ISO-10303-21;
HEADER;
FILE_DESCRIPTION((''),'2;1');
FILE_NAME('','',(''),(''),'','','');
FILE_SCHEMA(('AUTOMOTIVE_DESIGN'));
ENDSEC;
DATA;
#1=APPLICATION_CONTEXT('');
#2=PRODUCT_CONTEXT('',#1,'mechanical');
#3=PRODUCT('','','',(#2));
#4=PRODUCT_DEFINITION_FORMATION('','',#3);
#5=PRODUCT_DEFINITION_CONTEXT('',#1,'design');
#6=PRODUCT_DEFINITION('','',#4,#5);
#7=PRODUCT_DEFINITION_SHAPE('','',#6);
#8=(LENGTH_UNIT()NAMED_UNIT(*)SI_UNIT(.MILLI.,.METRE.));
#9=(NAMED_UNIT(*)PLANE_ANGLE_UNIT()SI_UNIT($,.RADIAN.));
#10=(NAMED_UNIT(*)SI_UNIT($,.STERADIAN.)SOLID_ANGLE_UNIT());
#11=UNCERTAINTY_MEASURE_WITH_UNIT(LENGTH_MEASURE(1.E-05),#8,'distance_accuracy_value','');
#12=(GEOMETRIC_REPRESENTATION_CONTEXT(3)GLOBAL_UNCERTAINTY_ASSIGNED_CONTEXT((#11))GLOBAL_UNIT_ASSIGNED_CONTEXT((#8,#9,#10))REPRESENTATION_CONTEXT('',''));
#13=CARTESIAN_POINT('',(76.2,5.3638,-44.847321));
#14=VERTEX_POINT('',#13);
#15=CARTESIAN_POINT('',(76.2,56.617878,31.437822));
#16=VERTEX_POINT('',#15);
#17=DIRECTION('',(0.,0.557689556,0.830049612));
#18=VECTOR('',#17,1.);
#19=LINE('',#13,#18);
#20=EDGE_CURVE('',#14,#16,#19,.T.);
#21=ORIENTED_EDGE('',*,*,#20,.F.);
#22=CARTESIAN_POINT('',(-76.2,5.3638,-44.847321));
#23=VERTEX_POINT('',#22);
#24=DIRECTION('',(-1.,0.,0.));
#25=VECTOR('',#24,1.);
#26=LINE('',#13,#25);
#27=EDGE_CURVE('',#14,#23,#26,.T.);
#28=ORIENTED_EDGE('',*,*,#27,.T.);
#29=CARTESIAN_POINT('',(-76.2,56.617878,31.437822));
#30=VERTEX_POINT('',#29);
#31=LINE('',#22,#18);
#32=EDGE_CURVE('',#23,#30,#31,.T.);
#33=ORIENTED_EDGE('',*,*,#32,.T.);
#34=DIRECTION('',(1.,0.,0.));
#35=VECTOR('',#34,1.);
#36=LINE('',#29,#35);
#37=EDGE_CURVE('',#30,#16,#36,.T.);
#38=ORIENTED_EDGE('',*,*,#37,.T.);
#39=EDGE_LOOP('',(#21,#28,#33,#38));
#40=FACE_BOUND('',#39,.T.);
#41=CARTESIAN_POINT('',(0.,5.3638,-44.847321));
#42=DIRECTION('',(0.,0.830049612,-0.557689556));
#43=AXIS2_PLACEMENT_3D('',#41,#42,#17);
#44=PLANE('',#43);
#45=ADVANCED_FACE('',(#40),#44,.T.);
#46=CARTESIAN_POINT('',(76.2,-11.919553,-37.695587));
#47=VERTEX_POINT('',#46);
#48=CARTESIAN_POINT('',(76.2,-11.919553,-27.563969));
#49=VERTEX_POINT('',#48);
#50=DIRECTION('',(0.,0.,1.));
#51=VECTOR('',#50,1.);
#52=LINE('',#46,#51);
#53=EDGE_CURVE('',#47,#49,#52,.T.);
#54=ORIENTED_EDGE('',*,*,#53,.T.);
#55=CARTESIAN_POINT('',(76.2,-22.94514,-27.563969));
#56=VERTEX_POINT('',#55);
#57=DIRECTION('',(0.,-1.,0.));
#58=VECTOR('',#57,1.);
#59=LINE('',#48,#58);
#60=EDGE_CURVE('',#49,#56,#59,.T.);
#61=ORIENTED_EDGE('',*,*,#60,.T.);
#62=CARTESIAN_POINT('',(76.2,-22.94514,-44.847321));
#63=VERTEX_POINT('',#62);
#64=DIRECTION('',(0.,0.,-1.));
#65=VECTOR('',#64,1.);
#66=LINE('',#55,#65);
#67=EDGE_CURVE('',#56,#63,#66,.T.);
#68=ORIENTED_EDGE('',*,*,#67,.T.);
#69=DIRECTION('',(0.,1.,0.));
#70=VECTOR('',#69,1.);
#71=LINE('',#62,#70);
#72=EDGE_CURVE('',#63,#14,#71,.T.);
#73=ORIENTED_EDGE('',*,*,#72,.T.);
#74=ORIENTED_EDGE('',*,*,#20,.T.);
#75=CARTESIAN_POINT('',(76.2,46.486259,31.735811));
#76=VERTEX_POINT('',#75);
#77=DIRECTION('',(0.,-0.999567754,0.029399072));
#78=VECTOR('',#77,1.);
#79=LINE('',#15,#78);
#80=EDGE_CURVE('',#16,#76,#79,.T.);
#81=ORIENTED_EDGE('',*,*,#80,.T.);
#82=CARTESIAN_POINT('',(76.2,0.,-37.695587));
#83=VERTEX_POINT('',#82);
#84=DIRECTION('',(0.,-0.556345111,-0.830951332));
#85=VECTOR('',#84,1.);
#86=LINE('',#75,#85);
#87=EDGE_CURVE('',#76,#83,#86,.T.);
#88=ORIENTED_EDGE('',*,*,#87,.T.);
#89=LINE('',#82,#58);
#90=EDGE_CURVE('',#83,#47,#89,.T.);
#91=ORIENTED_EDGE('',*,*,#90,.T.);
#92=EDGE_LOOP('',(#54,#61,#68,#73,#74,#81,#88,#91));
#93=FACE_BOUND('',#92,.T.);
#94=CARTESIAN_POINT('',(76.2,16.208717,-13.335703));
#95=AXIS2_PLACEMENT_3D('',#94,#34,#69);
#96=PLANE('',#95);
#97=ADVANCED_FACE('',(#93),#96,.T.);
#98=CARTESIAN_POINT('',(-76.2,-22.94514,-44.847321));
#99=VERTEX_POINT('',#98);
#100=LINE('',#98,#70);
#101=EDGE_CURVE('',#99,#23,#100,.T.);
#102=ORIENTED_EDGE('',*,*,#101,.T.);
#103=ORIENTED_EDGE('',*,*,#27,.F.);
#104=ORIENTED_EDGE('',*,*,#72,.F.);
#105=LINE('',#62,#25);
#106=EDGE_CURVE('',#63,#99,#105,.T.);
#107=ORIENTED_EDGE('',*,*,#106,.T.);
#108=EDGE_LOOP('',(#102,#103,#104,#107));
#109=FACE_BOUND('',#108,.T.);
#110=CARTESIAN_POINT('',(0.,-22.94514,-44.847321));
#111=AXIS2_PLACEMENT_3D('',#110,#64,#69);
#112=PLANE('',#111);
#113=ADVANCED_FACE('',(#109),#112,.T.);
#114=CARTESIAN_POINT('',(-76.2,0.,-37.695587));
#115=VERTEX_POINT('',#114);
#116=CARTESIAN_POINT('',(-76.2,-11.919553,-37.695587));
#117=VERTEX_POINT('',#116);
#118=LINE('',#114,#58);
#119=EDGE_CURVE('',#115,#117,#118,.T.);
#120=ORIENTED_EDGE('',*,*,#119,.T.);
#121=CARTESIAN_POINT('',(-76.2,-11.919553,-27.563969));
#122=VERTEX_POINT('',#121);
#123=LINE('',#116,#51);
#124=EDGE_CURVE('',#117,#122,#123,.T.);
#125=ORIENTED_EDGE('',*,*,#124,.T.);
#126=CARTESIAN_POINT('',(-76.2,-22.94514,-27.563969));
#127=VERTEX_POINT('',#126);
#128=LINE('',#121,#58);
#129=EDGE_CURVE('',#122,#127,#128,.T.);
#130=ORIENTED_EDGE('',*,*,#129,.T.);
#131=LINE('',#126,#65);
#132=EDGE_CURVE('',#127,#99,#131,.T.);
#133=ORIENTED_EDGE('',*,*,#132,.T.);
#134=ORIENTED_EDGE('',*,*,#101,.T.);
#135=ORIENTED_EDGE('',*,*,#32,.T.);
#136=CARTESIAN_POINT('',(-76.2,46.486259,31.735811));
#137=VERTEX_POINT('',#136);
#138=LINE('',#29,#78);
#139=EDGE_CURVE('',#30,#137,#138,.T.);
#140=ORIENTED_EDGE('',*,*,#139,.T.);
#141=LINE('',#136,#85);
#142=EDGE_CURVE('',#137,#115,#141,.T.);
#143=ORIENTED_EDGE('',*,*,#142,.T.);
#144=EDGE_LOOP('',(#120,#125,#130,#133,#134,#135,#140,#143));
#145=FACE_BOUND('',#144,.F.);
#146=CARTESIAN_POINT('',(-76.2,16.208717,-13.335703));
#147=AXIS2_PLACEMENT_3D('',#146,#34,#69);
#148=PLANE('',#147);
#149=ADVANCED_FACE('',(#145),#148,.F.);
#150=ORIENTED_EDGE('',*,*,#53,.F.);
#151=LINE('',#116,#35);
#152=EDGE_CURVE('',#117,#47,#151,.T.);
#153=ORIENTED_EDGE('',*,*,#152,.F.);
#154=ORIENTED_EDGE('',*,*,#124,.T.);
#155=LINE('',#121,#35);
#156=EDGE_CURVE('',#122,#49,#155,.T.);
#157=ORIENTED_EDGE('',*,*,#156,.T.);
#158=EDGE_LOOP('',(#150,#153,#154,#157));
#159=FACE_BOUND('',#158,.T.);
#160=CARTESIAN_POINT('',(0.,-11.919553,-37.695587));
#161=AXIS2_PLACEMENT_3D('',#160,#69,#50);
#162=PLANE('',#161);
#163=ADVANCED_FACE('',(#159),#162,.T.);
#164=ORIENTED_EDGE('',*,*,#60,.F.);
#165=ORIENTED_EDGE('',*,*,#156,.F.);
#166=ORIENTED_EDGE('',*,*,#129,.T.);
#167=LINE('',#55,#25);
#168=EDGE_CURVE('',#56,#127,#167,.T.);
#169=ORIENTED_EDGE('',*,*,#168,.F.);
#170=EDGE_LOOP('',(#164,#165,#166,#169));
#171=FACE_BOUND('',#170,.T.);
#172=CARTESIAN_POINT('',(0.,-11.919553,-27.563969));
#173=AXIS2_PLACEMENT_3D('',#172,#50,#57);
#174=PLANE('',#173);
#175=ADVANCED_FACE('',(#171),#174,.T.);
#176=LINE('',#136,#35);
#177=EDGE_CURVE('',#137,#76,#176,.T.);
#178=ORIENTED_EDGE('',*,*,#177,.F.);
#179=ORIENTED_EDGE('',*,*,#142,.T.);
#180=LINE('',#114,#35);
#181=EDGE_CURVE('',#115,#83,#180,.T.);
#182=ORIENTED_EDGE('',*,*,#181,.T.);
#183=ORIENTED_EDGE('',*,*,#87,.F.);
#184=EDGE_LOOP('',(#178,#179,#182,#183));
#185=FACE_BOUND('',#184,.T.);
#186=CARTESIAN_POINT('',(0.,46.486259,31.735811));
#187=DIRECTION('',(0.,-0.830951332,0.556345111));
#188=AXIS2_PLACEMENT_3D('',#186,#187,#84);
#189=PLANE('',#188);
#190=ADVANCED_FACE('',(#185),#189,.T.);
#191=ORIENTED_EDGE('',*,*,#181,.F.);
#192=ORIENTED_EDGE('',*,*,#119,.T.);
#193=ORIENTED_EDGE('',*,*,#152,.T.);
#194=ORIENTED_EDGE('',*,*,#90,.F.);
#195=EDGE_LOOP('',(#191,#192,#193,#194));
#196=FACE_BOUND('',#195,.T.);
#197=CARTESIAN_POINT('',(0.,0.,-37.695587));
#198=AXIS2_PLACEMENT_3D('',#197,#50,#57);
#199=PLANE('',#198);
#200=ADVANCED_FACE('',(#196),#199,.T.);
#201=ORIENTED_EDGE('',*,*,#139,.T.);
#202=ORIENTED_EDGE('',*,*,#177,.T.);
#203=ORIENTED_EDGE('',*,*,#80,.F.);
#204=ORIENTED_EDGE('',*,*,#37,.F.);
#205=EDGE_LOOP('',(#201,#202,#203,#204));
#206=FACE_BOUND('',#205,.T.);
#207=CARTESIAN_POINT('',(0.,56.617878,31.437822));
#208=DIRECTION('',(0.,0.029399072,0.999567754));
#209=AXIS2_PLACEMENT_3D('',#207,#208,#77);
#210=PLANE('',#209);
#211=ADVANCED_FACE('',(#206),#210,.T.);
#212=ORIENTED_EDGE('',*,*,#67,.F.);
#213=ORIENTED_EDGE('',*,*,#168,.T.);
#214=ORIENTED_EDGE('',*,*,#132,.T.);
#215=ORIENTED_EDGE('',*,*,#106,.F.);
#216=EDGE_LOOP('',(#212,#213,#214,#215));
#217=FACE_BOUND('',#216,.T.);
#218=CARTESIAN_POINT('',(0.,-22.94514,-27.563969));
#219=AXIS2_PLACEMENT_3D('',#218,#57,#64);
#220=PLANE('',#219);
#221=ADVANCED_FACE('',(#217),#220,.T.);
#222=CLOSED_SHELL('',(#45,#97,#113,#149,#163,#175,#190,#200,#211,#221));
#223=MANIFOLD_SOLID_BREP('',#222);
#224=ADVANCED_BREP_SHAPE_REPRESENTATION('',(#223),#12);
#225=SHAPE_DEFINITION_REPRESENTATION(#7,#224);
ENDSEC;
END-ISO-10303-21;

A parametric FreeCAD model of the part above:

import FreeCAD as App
import Part
import Sketcher
Q = App.Units.Quantity

doc = App.newDocument("Part")
params = doc.addObject("Spreadsheet::Sheet", "Params")
for row, (alias, value) in enumerate([
    ("pad1_length", "3 in"),
    ("pad1_length2", "3 in"),
], start=1):
    params.set(f"A{row}", alias)
    params.set(f"B{row}", "=" + value)
    params.setAlias(f"B{row}", alias)

body = doc.addObject("PartDesign::Body", "Body")

sketch1 = doc.addObject("Sketcher::SketchObject", "Sketch")
body.addObject(sketch1)
sketch1.AttachmentSupport = (doc.YZ_Plane, [""])
sketch1.MapMode = "FlatFace"
sketch1.addGeometry(Part.LineSegment(App.Vector(5, -45, 0), App.Vector(57, 31, 0)), False)
sketch1.addGeometry(Part.LineSegment(App.Vector(57, 31, 0), App.Vector(46, 32, 0)), False)
sketch1.addGeometry(Part.LineSegment(App.Vector(46, 32, 0), App.Vector(0, -38, 0)), False)
sketch1.addGeometry(Part.LineSegment(App.Vector(0, -38, 0), App.Vector(-12, -38, 0)), False)
sketch1.addGeometry(Part.LineSegment(App.Vector(-12, -38, 0), App.Vector(-12, -28, 0)), False)
sketch1.addGeometry(Part.LineSegment(App.Vector(-12, -28, 0), App.Vector(-23, -28, 0)), False)
sketch1.addGeometry(Part.LineSegment(App.Vector(-23, -28, 0), App.Vector(-23, -45, 0)), False)
sketch1.addGeometry(Part.LineSegment(App.Vector(-23, -45, 0), App.Vector(5, -45, 0)), False)
sketch1.addConstraint(Sketcher.Constraint("Coincident", 0, 2, 1, 1))
sketch1.addConstraint(Sketcher.Constraint("Coincident", 1, 2, 2, 1))
sketch1.addConstraint(Sketcher.Constraint("Coincident", 2, 2, 3, 1))
sketch1.addConstraint(Sketcher.Constraint("Coincident", 3, 2, 4, 1))
sketch1.addConstraint(Sketcher.Constraint("Coincident", 4, 2, 5, 1))
sketch1.addConstraint(Sketcher.Constraint("Coincident", 5, 2, 6, 1))
sketch1.addConstraint(Sketcher.Constraint("Coincident", 6, 2, 7, 1))
sketch1.addConstraint(Sketcher.Constraint("Coincident", 7, 2, 0, 1))
sketch1.addConstraint(Sketcher.Constraint("Horizontal", 3))
sketch1.addConstraint(Sketcher.Constraint("Vertical", 4))
sketch1.addConstraint(Sketcher.Constraint("Horizontal", 5))
sketch1.addConstraint(Sketcher.Constraint("Vertical", 6))
sketch1.addConstraint(Sketcher.Constraint("Horizontal", 7))
sketch1.addConstraint(Sketcher.Constraint("PointOnObject", 2, 2, -2))
sketch1.addConstraint(Sketcher.Constraint("Distance", 1, Q("10.136 mm")))
sketch1.addConstraint(Sketcher.Constraint("DistanceX", 7, 1, 7, 2, Q("28.30894 mm")))
sketch1.addConstraint(Sketcher.Constraint("DistanceY", 4, 1, 4, 2, Q("10.131618 mm")))
sketch1.addConstraint(Sketcher.Constraint("DistanceX", -1, 1, 7, 2, Q("5.3638 mm")))
sketch1.addConstraint(Sketcher.Constraint("DistanceY", 2, 2, 1, 2, Q("69.431398 mm")))
sketch1.addConstraint(Sketcher.Constraint("DistanceX", 5, 2, 1, 2, Q("69.431399 mm")))
sketch1.addConstraint(Sketcher.Constraint("DistanceX", 3, 2, 3, 1, Q("11.919553 mm")))
sketch1.addConstraint(Sketcher.Constraint("DistanceY", 6, 2, 6, 1, Q("17.283352 mm")))
sketch1.addConstraint(Sketcher.Constraint("DistanceY", -1, 1, 1, 2, Q("31.735811 mm")))
sketch1.addConstraint(Sketcher.Constraint("DistanceX", 1, 2, 0, 2, Q("10.131619 mm")))
pad1 = doc.addObject("PartDesign::Pad", "Pad")
body.addObject(pad1)
pad1.Profile = sketch1
pad1.Type = "TwoLengths"
pad1.setExpression("Length", "Params.pad1_length")
pad1.setExpression("Length2", "Params.pad1_length2")

doc.recompute()
